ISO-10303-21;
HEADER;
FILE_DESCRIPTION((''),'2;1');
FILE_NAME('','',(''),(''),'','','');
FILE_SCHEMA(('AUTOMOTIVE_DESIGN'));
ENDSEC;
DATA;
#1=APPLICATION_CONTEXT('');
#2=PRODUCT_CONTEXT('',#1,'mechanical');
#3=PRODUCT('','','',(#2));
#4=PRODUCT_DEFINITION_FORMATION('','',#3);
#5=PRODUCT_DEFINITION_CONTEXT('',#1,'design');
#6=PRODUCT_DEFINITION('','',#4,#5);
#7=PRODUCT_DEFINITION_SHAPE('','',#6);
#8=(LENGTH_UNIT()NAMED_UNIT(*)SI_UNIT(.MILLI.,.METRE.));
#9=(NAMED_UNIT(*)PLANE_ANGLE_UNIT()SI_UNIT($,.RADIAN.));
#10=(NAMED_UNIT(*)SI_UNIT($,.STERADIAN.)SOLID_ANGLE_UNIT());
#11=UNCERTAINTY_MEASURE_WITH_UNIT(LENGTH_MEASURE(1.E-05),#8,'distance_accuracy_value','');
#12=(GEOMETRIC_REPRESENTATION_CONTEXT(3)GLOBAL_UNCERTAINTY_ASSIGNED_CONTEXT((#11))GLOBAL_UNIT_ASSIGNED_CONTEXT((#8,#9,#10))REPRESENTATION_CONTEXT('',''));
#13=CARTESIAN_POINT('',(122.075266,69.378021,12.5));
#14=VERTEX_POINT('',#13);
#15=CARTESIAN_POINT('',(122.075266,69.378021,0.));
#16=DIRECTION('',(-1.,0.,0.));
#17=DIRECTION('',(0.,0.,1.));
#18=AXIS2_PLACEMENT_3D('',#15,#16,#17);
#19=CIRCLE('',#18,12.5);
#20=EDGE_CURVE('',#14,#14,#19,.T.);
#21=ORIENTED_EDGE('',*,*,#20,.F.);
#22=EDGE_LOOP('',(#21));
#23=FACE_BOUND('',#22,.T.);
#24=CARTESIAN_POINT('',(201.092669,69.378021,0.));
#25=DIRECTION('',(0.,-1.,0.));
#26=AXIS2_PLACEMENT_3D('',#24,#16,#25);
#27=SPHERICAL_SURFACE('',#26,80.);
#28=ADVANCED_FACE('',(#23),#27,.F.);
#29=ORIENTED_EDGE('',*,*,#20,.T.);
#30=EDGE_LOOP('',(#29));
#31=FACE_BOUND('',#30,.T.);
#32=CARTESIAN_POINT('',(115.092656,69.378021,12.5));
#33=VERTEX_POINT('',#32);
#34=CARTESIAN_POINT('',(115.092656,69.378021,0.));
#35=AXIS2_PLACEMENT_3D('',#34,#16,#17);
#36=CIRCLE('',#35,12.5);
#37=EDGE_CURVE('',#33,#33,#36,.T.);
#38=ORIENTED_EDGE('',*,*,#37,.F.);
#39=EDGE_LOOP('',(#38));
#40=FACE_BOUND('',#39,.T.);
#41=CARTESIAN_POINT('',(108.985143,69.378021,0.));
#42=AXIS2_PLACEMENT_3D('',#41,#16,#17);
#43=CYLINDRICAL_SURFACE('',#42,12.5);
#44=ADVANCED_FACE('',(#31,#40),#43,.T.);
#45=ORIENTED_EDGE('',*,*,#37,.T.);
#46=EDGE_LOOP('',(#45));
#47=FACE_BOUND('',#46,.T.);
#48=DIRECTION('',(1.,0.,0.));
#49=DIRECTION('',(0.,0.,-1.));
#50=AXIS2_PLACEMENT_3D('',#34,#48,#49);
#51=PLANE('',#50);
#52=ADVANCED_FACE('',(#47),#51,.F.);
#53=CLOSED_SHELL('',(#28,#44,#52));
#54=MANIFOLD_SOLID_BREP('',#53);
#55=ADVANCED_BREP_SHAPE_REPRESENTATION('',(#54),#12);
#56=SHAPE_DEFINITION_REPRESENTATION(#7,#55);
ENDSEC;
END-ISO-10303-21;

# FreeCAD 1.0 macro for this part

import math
import FreeCAD as App
import Part
import Sketcher
Q = App.Units.Quantity

doc = App.newDocument("Part")
body = doc.addObject("PartDesign::Body", "Body")

sketch1 = body.newObject("Sketcher::SketchObject", "Sketch")
sketch1.AttachmentSupport = (doc.getObject("XY_Plane"), [""])
sketch1.MapMode = "FlatFace"
sketch1.addGeometry([
    Part.LineSegment(App.Vector(115, 82, 0), App.Vector(115, 69, 0)),
    Part.LineSegment(App.Vector(115, 69, 0), App.Vector(121, 69, 0)),
    Part.ArcOfCircle(Part.Circle(App.Vector(201, 69, 0), App.Vector(0, 0, 1), 80), math.radians(171.01), math.radians(180)),
    Part.LineSegment(App.Vector(122, 82, 0), App.Vector(115, 82, 0)),
], False)
sketch1.addGeometry(Part.LineSegment(App.Vector(115, 69, 0), App.Vector(201, 69, 0)), True)
sketch1.addConstraint([
    Sketcher.Constraint("Coincident", 0, 2, 1, 1),
    Sketcher.Constraint("Coincident", 1, 2, 2, 2),
    Sketcher.Constraint("Coincident", 2, 1, 3, 1),
    Sketcher.Constraint("Coincident", 3, 2, 0, 1),
    Sketcher.Constraint("Vertical", 0),
    Sketcher.Constraint("Horizontal", 1),
    Sketcher.Constraint("Horizontal", 3),
    Sketcher.Constraint("Horizontal", 4),
    Sketcher.Constraint("Coincident", 4, 1, 0, 2),
    Sketcher.Constraint("Coincident", 4, 2, 2, 3),
    Sketcher.Constraint("Radius", 2, Q("80 mm")),
    Sketcher.Constraint("DistanceY", 0, 2, 0, 1, Q("12.5 mm")),
    Sketcher.Constraint("DistanceX", 3, 2, 3, 1, Q("6.982611 mm")),
    Sketcher.Constraint("DistanceX", -1, 1, 2, 3, Q("201.092669 mm")),
    Sketcher.Constraint("DistanceY", -1, 1, 2, 3, Q("69.378021 mm")),
])
revolution = body.newObject("PartDesign::Revolution", "Revolution")
revolution.Profile = sketch1
revolution.ReferenceAxis = (sketch1, ["Axis0"])
revolution.Angle = 360

doc.recompute()
